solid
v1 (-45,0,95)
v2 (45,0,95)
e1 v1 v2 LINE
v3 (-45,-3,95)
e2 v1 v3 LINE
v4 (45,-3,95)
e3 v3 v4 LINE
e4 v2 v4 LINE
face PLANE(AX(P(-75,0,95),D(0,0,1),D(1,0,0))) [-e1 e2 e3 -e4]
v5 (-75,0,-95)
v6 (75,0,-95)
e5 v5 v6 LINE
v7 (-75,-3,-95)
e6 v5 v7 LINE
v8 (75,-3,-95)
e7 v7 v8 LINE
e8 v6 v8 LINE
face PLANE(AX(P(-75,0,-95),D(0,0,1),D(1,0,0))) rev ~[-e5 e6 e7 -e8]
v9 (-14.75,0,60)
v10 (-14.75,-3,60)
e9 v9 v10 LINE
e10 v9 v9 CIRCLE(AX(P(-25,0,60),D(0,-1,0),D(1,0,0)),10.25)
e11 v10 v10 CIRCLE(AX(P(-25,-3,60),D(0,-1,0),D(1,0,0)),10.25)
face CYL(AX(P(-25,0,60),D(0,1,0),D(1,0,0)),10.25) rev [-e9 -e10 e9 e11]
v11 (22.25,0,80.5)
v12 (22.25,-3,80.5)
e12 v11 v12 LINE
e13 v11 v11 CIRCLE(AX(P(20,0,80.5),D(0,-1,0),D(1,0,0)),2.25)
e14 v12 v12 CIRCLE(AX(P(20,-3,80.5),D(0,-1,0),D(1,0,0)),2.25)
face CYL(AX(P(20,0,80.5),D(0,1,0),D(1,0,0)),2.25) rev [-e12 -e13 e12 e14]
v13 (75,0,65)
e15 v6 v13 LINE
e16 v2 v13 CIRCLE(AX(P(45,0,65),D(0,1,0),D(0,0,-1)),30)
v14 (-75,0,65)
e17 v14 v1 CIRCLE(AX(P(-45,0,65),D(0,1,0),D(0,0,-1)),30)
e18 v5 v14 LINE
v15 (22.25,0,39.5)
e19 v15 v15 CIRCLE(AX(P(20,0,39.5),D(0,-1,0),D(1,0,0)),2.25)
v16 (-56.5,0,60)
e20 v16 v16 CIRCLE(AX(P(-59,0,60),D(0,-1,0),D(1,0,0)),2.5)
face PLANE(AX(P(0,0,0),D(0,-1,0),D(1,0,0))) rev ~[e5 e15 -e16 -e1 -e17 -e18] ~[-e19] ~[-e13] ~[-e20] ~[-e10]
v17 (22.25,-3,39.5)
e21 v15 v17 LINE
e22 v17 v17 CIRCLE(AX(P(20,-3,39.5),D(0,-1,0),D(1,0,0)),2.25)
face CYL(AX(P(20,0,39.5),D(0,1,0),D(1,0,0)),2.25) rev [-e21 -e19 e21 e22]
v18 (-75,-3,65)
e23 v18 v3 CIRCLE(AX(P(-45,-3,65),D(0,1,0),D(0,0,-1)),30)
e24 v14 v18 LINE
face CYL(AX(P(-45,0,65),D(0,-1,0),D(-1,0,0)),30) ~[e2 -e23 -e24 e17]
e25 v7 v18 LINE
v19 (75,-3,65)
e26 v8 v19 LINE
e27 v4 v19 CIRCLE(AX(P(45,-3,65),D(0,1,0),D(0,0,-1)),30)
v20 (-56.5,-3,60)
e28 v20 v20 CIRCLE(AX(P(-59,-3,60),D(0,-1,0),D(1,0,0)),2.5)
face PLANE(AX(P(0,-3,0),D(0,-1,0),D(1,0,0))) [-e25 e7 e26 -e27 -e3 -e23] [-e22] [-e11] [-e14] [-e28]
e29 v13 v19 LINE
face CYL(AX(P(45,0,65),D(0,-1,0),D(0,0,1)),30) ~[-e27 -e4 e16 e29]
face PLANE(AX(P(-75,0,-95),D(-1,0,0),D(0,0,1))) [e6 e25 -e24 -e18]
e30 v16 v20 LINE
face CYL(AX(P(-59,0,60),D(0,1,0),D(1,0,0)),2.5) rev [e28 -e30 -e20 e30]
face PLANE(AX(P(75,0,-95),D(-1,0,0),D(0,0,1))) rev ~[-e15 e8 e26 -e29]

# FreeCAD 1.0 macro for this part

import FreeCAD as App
import Part
import Sketcher


def edges_at(feature, points):
    """Names of the edges that pass closest to the given points."""
    edges = feature.Shape.Edges
    near = lambda p: min(range(len(edges)), key=lambda i: edges[i].distToShape(Part.Vertex(*p))[0])
    return sorted({f"Edge{near(p) + 1}" for p in points})


def add_polygon(sketch, points):
    """Adds a closed chain of lines whose ends are joined by coincident constraints."""
    first, n = sketch.GeometryCount, len(points)
    for a, b in zip(points, points[1:] + points[:1]):
        sketch.addGeometry(Part.LineSegment(App.Vector(*a, 0), App.Vector(*b, 0)), False)
    for i in range(n):
        sketch.addConstraint(Sketcher.Constraint("Coincident", first + i, 2, first + (i + 1) % n, 1))

doc = App.newDocument("Part")
body = doc.addObject("PartDesign::Body", "Body")

# Sketch on XZ plane
sketch1 = doc.addObject("Sketcher::SketchObject", "Sketch")
body.addObject(sketch1)
sketch1.AttachmentSupport = (doc.XZ_Plane, [""])
sketch1.MapMode = "FlatFace"
add_polygon(sketch1, [(-75, 95), (-75, -95), (75, -95), (75, 95)])  # lines 0-3
sketch1.addGeometry(Part.Circle(App.Vector(20, 39.5, 0), App.Vector(0, 0, 1), 2.2), False)  # 4
sketch1.addGeometry(Part.Circle(App.Vector(-59, 60, 0), App.Vector(0, 0, 1), 2.5), False)  # 5
sketch1.addGeometry(Part.Circle(App.Vector(-25, 60, 0), App.Vector(0, 0, 1), 10.2), False)  # 6
sketch1.addGeometry(Part.Circle(App.Vector(20, 80.5, 0), App.Vector(0, 0, 1), 2.2), False)  # 7
sketch1.addConstraint(Sketcher.Constraint("Vertical", 0))
sketch1.addConstraint(Sketcher.Constraint("Horizontal", 1))
sketch1.addConstraint(Sketcher.Constraint("Vertical", 2))
sketch1.addConstraint(Sketcher.Constraint("Horizontal", 3))
sketch1.addConstraint(Sketcher.Constraint("Equal", 4, 7))
sketch1.addConstraint(Sketcher.Constraint("Symmetric", 0, 2, 2, 2, -1, 1))
sketch1.addConstraint(Sketcher.Constraint("Horizontal", 5, 3, 6, 3))
sketch1.addConstraint(Sketcher.Constraint("Vertical", 4, 3, 7, 3))
sketch1.addConstraint(Sketcher.Constraint("Diameter", 5, 5.0))
sketch1.addConstraint(Sketcher.Constraint("Diameter", 4, 4.5))
sketch1.addConstraint(Sketcher.Constraint("Diameter", 6, 20.5))
sketch1.addConstraint(Sketcher.Constraint("DistanceX", 1, 1, 1, 2, 150.0))
sketch1.addConstraint(Sketcher.Constraint("DistanceY", 0, 2, 0, 1, 190.0))
sketch1.addConstraint(Sketcher.Constraint("DistanceX", -1, 1, 4, 3, 20.0))
sketch1.addConstraint(Sketcher.Constraint("DistanceX", 5, 3, -1, 1, 59.0))
sketch1.addConstraint(Sketcher.Constraint("DistanceY", -1, 1, 5, 3, 60.0))
sketch1.addConstraint(Sketcher.Constraint("DistanceX", 6, 3, -1, 1, 25.0))
sketch1.addConstraint(Sketcher.Constraint("DistanceY", 4, 3, 7, 3, 41.0))
sketch1.addConstraint(Sketcher.Constraint("DistanceY", -1, 1, 4, 3, 39.5))
pad1 = doc.addObject("PartDesign::Pad", "Pad")
body.addObject(pad1)
pad1.Profile = sketch1
pad1.Length = 3
doc.recompute()

fillet = doc.addObject("PartDesign::Fillet", "Fillet")
body.addObject(fillet)
fillet.Base = (pad1, edges_at(pad1, [(75, -1.5, 95), (-75, -1.5, 95)]))
fillet.Radius = 30

doc.recompute()
